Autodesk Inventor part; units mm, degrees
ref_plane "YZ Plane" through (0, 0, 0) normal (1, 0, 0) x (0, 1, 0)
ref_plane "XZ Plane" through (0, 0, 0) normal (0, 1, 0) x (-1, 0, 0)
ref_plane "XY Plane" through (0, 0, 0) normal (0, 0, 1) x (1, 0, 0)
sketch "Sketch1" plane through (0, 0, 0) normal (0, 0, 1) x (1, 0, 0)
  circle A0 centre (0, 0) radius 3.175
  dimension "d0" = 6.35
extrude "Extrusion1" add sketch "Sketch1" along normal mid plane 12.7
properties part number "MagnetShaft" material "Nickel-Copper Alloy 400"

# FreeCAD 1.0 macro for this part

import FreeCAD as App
import Part
import Sketcher
Q = App.Units.Quantity

doc = App.newDocument("Part")
body = doc.addObject("PartDesign::Body", "Body")

# Sketch on XY plane
sketch1 = doc.addObject("Sketcher::SketchObject", "Sketch")
body.addObject(sketch1)
sketch1.AttachmentSupport = (doc.XY_Plane, [""])
sketch1.MapMode = "FlatFace"
sketch1.addGeometry(Part.Circle(App.Vector(0, 0, 0), App.Vector(0, 0, 1), 3.2), False)
sketch1.addConstraint(Sketcher.Constraint("Coincident", 0, 3, -1, 1))
sketch1.addConstraint(Sketcher.Constraint("Diameter", 0, Q("0.25 in")))
pad1 = doc.addObject("PartDesign::Pad", "Pad")
body.addObject(pad1)
pad1.Profile = sketch1
pad1.Length = Q("0.5 in")
pad1.Midplane = True

doc.recompute()
